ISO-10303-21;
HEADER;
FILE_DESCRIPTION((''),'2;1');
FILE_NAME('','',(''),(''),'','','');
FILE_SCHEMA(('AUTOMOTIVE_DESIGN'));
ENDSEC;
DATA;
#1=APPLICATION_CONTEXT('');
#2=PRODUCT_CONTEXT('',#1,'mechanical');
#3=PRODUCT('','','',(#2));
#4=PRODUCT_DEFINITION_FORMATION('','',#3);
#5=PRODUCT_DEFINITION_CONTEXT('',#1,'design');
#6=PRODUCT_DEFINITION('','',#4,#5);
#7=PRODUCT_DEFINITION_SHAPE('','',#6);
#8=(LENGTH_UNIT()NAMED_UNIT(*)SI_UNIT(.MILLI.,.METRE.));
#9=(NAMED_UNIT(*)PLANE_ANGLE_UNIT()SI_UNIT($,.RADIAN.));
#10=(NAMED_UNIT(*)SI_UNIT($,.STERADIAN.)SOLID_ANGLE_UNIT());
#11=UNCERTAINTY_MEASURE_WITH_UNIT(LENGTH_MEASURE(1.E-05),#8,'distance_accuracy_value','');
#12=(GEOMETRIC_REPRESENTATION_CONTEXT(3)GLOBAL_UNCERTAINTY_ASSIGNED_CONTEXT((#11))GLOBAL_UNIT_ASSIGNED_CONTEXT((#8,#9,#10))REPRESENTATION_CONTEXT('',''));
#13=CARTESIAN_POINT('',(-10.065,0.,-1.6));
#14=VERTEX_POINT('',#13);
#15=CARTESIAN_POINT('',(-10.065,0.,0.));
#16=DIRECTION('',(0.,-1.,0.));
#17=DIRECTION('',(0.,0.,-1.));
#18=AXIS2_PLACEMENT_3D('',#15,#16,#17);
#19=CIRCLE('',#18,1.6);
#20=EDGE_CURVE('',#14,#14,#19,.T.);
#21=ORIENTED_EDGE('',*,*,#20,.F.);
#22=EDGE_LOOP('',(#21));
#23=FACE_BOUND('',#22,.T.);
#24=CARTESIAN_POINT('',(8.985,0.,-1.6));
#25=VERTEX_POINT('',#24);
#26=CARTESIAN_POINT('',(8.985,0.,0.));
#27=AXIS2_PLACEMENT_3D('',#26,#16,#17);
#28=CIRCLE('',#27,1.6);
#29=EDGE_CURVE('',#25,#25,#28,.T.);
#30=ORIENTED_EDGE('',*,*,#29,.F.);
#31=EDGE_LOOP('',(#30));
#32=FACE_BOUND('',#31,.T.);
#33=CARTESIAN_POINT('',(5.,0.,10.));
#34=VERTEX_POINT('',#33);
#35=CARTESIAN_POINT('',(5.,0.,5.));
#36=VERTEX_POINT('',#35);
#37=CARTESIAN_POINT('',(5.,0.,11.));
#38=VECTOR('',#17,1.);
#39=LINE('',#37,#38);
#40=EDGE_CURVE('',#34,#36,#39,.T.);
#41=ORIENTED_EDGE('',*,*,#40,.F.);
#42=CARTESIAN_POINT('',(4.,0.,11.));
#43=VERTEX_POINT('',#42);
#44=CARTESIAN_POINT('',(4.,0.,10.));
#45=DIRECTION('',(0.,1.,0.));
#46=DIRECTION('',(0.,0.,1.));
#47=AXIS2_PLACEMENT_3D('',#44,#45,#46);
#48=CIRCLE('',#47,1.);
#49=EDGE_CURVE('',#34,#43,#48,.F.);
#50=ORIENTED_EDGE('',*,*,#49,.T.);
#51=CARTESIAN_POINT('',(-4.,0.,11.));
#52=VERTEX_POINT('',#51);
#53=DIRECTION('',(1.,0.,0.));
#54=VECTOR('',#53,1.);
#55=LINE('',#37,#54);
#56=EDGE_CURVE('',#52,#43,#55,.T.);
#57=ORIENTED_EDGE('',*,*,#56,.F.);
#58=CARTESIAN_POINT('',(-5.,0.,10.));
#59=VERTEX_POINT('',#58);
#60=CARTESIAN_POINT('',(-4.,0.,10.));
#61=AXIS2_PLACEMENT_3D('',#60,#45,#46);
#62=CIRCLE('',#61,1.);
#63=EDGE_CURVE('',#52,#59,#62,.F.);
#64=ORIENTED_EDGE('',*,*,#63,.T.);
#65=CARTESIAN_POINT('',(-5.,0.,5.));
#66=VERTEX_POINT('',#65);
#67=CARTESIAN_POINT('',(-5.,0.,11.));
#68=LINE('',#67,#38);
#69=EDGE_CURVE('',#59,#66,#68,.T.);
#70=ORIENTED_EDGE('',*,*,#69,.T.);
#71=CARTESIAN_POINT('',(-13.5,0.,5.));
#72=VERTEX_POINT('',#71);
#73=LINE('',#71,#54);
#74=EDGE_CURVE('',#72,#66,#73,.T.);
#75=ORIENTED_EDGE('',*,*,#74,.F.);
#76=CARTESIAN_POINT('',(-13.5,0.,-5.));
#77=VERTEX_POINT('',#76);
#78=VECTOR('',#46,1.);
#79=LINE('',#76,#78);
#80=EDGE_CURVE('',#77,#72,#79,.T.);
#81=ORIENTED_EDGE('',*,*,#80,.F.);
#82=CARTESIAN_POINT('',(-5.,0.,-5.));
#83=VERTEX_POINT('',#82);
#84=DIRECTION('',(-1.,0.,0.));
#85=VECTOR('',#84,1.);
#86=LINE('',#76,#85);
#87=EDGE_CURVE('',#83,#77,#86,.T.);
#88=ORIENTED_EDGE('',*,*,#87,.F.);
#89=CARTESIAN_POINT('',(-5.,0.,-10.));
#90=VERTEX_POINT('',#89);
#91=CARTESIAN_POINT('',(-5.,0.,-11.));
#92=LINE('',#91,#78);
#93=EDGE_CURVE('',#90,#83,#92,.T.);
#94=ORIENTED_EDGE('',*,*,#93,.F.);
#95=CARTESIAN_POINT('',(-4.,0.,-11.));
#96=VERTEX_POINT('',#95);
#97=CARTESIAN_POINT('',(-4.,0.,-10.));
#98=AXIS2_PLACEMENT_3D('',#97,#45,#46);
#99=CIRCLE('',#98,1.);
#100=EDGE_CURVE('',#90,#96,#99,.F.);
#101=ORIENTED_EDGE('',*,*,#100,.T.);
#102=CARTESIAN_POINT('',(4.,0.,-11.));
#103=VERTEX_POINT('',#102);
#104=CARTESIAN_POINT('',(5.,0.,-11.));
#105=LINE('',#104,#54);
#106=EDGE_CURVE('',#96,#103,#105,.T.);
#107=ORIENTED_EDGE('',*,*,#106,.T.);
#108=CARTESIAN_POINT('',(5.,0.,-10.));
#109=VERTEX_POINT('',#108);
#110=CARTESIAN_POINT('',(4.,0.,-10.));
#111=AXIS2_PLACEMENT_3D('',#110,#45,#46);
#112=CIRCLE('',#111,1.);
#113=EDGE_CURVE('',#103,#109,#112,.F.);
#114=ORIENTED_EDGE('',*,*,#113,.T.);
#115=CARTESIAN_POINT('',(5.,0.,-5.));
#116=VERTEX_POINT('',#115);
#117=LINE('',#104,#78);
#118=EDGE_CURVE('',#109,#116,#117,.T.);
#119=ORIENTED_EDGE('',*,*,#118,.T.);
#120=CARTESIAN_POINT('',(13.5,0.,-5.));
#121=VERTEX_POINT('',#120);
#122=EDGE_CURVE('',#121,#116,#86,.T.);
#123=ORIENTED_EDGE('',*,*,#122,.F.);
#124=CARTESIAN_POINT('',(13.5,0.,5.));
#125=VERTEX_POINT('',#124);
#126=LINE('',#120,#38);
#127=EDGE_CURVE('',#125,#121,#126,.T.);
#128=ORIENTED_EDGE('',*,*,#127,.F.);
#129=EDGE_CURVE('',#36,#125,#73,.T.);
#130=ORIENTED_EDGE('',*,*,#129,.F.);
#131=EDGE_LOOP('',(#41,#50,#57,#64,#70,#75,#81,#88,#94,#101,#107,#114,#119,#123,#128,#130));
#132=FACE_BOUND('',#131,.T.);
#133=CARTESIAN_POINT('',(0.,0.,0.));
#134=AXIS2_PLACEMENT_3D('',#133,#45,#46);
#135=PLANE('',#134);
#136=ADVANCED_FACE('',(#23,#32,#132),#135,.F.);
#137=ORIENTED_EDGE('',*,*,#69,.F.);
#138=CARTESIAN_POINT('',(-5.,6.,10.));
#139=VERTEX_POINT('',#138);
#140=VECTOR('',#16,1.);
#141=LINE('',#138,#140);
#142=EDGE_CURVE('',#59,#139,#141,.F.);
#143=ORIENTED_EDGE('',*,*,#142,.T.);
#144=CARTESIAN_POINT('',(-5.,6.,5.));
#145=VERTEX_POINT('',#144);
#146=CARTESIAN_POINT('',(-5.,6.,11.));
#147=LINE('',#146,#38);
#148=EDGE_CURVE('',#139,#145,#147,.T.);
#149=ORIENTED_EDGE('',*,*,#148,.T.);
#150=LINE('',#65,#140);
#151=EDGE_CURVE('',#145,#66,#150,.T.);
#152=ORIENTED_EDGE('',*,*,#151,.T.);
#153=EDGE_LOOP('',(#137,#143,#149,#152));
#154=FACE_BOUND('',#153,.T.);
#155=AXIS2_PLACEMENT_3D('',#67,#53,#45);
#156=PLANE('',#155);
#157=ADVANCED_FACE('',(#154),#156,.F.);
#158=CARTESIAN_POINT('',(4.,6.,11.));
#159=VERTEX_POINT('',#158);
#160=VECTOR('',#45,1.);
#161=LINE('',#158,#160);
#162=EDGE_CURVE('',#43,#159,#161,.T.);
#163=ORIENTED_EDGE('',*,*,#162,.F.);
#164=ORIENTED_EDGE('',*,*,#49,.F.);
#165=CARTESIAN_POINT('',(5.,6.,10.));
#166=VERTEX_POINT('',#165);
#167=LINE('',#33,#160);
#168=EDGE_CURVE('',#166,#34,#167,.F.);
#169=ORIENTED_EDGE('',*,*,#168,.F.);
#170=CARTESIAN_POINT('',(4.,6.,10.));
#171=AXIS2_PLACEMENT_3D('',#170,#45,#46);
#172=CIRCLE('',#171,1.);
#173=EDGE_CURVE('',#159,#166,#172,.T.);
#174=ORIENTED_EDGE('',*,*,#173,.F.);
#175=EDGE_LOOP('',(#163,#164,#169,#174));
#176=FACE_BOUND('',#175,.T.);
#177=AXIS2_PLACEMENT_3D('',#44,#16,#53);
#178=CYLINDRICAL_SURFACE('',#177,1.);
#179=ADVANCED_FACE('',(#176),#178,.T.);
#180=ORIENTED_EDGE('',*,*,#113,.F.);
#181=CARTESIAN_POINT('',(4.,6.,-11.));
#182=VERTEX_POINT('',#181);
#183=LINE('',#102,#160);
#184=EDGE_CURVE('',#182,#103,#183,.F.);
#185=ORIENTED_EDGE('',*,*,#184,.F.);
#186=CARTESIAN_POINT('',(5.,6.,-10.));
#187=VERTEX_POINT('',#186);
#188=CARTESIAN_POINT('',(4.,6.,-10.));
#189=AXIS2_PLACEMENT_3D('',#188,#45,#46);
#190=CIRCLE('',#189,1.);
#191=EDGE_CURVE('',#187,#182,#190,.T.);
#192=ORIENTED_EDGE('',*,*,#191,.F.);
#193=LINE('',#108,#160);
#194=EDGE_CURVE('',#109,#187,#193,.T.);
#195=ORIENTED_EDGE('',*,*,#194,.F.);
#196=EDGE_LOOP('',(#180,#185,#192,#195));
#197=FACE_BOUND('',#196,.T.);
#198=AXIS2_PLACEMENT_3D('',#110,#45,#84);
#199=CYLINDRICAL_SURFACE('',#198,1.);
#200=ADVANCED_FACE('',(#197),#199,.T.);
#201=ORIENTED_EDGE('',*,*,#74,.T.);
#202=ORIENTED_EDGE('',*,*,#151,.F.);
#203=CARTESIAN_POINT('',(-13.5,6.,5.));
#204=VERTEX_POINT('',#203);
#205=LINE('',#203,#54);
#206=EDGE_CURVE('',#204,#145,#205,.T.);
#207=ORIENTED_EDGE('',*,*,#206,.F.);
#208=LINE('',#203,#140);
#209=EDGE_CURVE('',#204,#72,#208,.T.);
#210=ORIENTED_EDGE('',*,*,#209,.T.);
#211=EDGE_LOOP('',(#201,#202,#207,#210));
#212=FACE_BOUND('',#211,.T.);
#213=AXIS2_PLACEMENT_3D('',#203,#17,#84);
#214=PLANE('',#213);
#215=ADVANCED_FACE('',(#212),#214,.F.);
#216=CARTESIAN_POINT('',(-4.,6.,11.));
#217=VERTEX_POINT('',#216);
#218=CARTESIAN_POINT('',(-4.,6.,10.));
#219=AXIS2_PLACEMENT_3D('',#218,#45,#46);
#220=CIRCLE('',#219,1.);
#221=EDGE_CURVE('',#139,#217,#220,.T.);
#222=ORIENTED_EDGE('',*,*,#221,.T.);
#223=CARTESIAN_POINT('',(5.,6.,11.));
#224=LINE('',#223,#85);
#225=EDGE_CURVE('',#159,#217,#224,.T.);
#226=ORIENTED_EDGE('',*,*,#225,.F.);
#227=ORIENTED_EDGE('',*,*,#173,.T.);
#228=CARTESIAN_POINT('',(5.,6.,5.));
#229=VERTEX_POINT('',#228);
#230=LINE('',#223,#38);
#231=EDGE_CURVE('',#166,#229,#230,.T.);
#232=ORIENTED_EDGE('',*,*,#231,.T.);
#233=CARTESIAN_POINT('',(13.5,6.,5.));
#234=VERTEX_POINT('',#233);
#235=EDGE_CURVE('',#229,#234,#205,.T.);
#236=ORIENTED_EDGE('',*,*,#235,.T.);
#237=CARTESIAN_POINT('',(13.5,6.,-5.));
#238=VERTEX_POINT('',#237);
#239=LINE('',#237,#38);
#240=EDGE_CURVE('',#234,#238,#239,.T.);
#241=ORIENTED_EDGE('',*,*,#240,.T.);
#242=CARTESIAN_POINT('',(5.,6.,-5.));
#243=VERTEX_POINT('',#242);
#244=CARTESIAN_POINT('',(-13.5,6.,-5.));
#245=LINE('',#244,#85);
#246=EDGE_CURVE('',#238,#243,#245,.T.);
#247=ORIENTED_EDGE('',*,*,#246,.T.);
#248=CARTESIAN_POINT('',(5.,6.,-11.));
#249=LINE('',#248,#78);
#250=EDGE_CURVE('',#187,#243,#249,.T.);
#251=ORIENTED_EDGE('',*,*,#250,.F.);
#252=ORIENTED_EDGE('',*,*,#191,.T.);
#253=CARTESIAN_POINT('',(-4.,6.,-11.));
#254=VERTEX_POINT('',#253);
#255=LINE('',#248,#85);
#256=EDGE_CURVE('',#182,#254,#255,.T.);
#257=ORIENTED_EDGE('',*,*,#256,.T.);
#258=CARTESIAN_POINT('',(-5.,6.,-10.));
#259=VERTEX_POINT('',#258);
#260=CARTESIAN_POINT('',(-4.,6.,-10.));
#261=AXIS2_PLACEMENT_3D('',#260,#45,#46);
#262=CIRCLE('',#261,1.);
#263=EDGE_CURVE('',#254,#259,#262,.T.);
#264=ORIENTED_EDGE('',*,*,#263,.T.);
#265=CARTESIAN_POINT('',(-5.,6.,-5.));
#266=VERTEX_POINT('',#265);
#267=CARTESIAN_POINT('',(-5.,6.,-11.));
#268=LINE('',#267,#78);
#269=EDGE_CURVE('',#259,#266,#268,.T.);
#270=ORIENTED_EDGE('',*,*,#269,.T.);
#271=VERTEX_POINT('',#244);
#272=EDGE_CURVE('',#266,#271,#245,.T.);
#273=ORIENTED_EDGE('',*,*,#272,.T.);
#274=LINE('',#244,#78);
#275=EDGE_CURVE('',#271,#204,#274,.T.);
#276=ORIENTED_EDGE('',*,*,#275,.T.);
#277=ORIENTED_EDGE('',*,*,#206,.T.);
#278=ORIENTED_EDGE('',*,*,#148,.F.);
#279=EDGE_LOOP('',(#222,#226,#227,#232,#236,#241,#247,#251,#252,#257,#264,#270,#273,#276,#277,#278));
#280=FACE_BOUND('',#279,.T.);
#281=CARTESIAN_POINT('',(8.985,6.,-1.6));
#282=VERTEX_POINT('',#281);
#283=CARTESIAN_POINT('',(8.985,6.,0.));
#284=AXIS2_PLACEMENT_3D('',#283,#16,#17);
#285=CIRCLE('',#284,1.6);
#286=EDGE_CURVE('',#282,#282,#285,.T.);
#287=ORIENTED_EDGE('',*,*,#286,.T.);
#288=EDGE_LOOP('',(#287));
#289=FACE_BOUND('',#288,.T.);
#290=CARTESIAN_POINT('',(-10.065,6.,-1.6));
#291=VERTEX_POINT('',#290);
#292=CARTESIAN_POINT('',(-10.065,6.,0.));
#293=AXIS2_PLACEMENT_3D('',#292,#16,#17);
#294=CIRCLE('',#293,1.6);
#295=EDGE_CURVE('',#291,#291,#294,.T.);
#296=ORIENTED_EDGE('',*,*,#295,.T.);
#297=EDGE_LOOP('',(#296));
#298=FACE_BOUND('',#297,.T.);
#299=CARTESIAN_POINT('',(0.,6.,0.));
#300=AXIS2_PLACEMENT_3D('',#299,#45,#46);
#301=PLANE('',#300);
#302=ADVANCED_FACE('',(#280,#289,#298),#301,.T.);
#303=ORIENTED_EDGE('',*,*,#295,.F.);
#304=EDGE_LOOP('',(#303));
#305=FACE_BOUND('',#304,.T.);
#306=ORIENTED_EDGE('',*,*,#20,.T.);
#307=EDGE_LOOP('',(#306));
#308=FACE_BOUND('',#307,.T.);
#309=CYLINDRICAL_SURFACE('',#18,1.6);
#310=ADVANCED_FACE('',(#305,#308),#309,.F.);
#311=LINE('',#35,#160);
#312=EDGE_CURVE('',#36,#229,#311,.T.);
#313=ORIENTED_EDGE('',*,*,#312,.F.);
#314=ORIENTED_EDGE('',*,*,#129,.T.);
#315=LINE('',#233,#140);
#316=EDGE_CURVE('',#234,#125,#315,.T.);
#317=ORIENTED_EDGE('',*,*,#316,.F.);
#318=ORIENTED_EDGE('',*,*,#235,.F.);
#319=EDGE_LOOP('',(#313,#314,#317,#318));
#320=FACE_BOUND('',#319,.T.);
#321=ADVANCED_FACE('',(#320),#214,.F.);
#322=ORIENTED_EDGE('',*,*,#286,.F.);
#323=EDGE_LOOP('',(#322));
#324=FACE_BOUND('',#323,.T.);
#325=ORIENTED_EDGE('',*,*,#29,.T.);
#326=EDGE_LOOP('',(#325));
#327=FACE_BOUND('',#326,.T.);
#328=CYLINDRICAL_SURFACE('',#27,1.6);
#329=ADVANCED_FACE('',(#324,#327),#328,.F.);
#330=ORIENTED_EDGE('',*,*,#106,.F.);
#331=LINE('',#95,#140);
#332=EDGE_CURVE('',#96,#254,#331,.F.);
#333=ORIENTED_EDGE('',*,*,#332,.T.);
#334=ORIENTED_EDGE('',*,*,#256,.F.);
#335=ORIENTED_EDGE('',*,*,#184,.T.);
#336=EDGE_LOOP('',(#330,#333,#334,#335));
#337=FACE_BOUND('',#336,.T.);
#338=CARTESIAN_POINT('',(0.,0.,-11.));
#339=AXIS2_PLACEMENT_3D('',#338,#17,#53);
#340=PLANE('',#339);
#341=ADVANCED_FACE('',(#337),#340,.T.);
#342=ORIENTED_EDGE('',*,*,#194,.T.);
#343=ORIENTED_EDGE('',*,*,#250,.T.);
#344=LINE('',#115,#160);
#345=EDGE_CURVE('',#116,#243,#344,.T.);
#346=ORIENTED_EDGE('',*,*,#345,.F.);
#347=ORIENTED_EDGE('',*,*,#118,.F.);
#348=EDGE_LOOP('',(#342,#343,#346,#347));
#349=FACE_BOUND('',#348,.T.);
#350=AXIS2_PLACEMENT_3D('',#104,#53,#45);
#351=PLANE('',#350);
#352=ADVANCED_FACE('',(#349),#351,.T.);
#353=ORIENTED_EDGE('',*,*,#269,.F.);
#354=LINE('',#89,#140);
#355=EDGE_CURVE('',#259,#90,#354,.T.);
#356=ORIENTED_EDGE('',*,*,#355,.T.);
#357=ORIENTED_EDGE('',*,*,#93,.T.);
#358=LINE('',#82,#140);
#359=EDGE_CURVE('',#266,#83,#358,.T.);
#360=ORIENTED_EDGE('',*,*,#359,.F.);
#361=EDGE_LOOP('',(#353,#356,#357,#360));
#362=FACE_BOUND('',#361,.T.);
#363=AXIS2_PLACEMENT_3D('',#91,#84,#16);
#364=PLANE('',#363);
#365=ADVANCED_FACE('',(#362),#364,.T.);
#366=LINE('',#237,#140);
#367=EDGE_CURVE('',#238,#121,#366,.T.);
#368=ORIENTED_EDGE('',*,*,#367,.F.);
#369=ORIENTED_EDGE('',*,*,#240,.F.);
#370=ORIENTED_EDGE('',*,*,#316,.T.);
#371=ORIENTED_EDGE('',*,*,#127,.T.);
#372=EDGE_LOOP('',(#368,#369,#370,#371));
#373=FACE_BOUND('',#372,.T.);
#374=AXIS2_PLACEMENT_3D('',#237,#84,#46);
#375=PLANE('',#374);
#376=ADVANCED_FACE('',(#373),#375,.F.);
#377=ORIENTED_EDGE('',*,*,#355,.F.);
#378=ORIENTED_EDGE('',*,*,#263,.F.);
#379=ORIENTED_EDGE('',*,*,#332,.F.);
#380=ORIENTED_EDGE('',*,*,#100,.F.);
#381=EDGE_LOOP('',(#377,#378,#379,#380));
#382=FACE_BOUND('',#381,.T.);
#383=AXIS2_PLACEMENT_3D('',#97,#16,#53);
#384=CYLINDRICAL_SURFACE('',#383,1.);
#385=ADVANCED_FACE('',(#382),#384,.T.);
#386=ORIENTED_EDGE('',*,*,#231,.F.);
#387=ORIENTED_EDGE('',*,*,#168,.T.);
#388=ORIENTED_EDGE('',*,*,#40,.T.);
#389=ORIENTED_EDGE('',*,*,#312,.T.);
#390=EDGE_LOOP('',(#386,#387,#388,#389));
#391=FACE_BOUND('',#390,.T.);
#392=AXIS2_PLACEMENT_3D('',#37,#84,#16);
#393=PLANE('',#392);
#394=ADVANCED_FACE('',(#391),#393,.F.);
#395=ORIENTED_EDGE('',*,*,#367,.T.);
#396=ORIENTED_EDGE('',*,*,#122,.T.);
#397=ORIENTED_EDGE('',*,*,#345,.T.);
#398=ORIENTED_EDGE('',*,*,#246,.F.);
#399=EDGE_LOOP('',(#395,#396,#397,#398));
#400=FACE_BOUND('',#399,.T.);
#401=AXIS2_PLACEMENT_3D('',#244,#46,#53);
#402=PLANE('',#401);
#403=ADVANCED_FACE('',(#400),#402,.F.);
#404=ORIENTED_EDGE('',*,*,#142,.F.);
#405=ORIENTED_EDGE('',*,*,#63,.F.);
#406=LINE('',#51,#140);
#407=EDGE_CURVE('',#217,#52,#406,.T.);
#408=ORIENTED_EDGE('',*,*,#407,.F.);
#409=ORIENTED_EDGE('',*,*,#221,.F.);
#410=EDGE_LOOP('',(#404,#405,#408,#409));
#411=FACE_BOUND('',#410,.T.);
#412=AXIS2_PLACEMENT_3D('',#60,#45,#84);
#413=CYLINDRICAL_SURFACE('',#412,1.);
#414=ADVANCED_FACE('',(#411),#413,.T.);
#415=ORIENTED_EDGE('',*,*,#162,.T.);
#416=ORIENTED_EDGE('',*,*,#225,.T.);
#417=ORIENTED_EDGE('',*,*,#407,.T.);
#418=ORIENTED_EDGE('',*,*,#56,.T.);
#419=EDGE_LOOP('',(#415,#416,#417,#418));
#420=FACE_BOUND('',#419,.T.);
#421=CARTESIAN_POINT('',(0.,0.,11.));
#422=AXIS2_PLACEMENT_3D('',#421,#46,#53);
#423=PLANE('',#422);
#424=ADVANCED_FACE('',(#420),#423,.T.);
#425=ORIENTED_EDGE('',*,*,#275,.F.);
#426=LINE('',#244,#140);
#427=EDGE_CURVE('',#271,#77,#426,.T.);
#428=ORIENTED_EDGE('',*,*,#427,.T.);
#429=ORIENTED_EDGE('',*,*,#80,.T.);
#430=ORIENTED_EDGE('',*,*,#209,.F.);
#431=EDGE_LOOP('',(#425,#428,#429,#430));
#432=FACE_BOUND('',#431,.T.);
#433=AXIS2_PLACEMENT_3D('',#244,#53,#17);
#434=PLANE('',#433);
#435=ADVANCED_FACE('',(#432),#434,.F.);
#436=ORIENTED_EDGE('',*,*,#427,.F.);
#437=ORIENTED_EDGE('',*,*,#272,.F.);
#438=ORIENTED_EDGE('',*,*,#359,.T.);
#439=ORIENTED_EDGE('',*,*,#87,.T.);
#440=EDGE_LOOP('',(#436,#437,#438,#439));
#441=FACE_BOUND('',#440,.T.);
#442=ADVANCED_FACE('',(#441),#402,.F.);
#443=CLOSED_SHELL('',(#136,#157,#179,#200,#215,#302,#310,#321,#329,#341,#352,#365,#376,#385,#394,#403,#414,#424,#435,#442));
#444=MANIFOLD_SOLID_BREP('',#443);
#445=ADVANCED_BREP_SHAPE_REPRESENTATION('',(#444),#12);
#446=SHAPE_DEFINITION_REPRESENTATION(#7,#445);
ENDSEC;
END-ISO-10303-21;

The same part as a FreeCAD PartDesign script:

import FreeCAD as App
import Part
import Sketcher

V = App.Vector
Q = App.Units.Quantity


def edges_at(feature, points):
    """Names of the edges that pass closest to the given points."""
    edges = feature.Shape.Edges
    near = lambda p: min(range(len(edges)), key=lambda i: edges[i].distToShape(Part.Vertex(*p))[0])
    return sorted({f"Edge{near(p) + 1}" for p in points})

doc = App.newDocument("Part")
body = doc.addObject("PartDesign::Body", "Body")

# Sketch on XZ plane
sketch1 = doc.addObject("Sketcher::SketchObject", "Sketch")
body.addObject(sketch1)
sketch1.AttachmentSupport = (doc.XZ_Plane, [""])
sketch1.MapMode = "FlatFace"
sketch1.addGeometry([
    Part.LineSegment(V(-14, -5, 0), V(-14, 5, 0)),
    Part.LineSegment(V(-14, 5, 0), V(14, 5, 0)),
    Part.LineSegment(V(14, 5, 0), V(14, -5, 0)),
    Part.LineSegment(V(14, -5, 0), V(-14, -5, 0)),
], False)
sketch1.addConstraint([
    Sketcher.Constraint("Coincident", 0, 2, 1, 1),
    Sketcher.Constraint("Coincident", 1, 2, 2, 1),
    Sketcher.Constraint("Coincident", 2, 2, 3, 1),
    Sketcher.Constraint("Coincident", 3, 2, 0, 1),
    Sketcher.Constraint("Vertical", 0),
    Sketcher.Constraint("Horizontal", 1),
    Sketcher.Constraint("Vertical", 2),
    Sketcher.Constraint("Horizontal", 3),
    Sketcher.Constraint("Symmetric", 0, 2, 2, 2, -1, 1),
    Sketcher.Constraint("DistanceX", 1, 1, 1, 2, Q("27 mm")),
    Sketcher.Constraint("DistanceY", 0, 1, 0, 2, Q("10 mm")),
])
pad1 = doc.addObject("PartDesign::Pad", "Pad")
body.addObject(pad1)
pad1.Profile = sketch1
pad1.Length = 6
pad1.Reversed = True

# Sketch on XZ plane
sketch2 = doc.addObject("Sketcher::SketchObject", "Sketch001")
body.addObject(sketch2)
sketch2.AttachmentSupport = (doc.XZ_Plane, [""])
sketch2.MapMode = "FlatFace"
sketch2.addGeometry([
    Part.Circle(V(-10.1, 0, 0), V(0, 0, 1), 1.6),
    Part.Circle(V(9, 0, 0), V(0, 0, 1), 1.6),
], False)
sketch2.addConstraint([
    Sketcher.Constraint("Equal", 0, 1),
    Sketcher.Constraint("PointOnObject", 0, 3, -1),
    Sketcher.Constraint("PointOnObject", 1, 3, -1),
    Sketcher.Constraint("Diameter", 0, Q("3.2 mm")),
    Sketcher.Constraint("DistanceX", 0, 3, 1, 3, Q("19.05 mm")),
    Sketcher.Constraint("DistanceX", 0, 3, -1, 1, Q("10.065 mm")),
])
doc.recompute()
hole = doc.addObject("PartDesign::Hole", "Hole")
body.addObject(hole)
hole.Profile = sketch2
hole.ThreadType = "None"
hole.Diameter = 3.2
hole.DepthType = "ThroughAll"

# Sketch on XY plane
sketch3 = doc.addObject("Sketcher::SketchObject", "Sketch002")
body.addObject(sketch3)
sketch3.AttachmentSupport = (doc.XY_Plane, [""])
sketch3.MapMode = "FlatFace"
sketch3.AttachmentOffset = App.Placement(V(0, 0, 5), App.Rotation())
sketch3.addGeometry([
    Part.LineSegment(V(5, 0, 0), V(5, 6, 0)),
    Part.LineSegment(V(5, 6, 0), V(-5, 6, 0)),
    Part.LineSegment(V(-5, 6, 0), V(-5, 0, 0)),
    Part.LineSegment(V(-5, 0, 0), V(5, 0, 0)),
], False)
sketch3.addConstraint([
    Sketcher.Constraint("Coincident", 0, 2, 1, 1),
    Sketcher.Constraint("Coincident", 1, 2, 2, 1),
    Sketcher.Constraint("Coincident", 2, 2, 3, 1),
    Sketcher.Constraint("Coincident", 3, 2, 0, 1),
    Sketcher.Constraint("Vertical", 0),
    Sketcher.Constraint("Horizontal", 1),
    Sketcher.Constraint("Vertical", 2),
    Sketcher.Constraint("Horizontal", 3),
    Sketcher.Constraint("Symmetric", 2, 2, 3, 2, -1, 1),
    Sketcher.Constraint("DistanceX", 1, 2, 1, 1, Q("10 mm")),
    Sketcher.Constraint("DistanceY", 0, 1, 0, 2, Q("6 mm")),
])
pad2 = doc.addObject("PartDesign::Pad", "Pad001")
body.addObject(pad2)
pad2.Profile = sketch3
pad2.Length = 6
doc.recompute()

fillet = doc.addObject("PartDesign::Fillet", "Fillet")
body.addObject(fillet)
fillet.Base = (pad2, edges_at(pad2, [(5, 3, 11), (-5, 3, 11)]))
fillet.Radius = 1
doc.recompute()

mirrored = doc.addObject("PartDesign::Mirrored", "Mirrored")
body.addObject(mirrored)
mirrored.Originals = [pad2]
mirrored.MirrorPlane = (doc.XY_Plane, [""])
body.Tip = mirrored
doc.recompute()

fillet2 = doc.addObject("PartDesign::Fillet", "Fillet001")
body.addObject(fillet2)
fillet2.Base = (mirrored, edges_at(mirrored, [(5, 3, -11), (-5, 3, -11)]))
fillet2.Radius = 1

doc.recompute()
